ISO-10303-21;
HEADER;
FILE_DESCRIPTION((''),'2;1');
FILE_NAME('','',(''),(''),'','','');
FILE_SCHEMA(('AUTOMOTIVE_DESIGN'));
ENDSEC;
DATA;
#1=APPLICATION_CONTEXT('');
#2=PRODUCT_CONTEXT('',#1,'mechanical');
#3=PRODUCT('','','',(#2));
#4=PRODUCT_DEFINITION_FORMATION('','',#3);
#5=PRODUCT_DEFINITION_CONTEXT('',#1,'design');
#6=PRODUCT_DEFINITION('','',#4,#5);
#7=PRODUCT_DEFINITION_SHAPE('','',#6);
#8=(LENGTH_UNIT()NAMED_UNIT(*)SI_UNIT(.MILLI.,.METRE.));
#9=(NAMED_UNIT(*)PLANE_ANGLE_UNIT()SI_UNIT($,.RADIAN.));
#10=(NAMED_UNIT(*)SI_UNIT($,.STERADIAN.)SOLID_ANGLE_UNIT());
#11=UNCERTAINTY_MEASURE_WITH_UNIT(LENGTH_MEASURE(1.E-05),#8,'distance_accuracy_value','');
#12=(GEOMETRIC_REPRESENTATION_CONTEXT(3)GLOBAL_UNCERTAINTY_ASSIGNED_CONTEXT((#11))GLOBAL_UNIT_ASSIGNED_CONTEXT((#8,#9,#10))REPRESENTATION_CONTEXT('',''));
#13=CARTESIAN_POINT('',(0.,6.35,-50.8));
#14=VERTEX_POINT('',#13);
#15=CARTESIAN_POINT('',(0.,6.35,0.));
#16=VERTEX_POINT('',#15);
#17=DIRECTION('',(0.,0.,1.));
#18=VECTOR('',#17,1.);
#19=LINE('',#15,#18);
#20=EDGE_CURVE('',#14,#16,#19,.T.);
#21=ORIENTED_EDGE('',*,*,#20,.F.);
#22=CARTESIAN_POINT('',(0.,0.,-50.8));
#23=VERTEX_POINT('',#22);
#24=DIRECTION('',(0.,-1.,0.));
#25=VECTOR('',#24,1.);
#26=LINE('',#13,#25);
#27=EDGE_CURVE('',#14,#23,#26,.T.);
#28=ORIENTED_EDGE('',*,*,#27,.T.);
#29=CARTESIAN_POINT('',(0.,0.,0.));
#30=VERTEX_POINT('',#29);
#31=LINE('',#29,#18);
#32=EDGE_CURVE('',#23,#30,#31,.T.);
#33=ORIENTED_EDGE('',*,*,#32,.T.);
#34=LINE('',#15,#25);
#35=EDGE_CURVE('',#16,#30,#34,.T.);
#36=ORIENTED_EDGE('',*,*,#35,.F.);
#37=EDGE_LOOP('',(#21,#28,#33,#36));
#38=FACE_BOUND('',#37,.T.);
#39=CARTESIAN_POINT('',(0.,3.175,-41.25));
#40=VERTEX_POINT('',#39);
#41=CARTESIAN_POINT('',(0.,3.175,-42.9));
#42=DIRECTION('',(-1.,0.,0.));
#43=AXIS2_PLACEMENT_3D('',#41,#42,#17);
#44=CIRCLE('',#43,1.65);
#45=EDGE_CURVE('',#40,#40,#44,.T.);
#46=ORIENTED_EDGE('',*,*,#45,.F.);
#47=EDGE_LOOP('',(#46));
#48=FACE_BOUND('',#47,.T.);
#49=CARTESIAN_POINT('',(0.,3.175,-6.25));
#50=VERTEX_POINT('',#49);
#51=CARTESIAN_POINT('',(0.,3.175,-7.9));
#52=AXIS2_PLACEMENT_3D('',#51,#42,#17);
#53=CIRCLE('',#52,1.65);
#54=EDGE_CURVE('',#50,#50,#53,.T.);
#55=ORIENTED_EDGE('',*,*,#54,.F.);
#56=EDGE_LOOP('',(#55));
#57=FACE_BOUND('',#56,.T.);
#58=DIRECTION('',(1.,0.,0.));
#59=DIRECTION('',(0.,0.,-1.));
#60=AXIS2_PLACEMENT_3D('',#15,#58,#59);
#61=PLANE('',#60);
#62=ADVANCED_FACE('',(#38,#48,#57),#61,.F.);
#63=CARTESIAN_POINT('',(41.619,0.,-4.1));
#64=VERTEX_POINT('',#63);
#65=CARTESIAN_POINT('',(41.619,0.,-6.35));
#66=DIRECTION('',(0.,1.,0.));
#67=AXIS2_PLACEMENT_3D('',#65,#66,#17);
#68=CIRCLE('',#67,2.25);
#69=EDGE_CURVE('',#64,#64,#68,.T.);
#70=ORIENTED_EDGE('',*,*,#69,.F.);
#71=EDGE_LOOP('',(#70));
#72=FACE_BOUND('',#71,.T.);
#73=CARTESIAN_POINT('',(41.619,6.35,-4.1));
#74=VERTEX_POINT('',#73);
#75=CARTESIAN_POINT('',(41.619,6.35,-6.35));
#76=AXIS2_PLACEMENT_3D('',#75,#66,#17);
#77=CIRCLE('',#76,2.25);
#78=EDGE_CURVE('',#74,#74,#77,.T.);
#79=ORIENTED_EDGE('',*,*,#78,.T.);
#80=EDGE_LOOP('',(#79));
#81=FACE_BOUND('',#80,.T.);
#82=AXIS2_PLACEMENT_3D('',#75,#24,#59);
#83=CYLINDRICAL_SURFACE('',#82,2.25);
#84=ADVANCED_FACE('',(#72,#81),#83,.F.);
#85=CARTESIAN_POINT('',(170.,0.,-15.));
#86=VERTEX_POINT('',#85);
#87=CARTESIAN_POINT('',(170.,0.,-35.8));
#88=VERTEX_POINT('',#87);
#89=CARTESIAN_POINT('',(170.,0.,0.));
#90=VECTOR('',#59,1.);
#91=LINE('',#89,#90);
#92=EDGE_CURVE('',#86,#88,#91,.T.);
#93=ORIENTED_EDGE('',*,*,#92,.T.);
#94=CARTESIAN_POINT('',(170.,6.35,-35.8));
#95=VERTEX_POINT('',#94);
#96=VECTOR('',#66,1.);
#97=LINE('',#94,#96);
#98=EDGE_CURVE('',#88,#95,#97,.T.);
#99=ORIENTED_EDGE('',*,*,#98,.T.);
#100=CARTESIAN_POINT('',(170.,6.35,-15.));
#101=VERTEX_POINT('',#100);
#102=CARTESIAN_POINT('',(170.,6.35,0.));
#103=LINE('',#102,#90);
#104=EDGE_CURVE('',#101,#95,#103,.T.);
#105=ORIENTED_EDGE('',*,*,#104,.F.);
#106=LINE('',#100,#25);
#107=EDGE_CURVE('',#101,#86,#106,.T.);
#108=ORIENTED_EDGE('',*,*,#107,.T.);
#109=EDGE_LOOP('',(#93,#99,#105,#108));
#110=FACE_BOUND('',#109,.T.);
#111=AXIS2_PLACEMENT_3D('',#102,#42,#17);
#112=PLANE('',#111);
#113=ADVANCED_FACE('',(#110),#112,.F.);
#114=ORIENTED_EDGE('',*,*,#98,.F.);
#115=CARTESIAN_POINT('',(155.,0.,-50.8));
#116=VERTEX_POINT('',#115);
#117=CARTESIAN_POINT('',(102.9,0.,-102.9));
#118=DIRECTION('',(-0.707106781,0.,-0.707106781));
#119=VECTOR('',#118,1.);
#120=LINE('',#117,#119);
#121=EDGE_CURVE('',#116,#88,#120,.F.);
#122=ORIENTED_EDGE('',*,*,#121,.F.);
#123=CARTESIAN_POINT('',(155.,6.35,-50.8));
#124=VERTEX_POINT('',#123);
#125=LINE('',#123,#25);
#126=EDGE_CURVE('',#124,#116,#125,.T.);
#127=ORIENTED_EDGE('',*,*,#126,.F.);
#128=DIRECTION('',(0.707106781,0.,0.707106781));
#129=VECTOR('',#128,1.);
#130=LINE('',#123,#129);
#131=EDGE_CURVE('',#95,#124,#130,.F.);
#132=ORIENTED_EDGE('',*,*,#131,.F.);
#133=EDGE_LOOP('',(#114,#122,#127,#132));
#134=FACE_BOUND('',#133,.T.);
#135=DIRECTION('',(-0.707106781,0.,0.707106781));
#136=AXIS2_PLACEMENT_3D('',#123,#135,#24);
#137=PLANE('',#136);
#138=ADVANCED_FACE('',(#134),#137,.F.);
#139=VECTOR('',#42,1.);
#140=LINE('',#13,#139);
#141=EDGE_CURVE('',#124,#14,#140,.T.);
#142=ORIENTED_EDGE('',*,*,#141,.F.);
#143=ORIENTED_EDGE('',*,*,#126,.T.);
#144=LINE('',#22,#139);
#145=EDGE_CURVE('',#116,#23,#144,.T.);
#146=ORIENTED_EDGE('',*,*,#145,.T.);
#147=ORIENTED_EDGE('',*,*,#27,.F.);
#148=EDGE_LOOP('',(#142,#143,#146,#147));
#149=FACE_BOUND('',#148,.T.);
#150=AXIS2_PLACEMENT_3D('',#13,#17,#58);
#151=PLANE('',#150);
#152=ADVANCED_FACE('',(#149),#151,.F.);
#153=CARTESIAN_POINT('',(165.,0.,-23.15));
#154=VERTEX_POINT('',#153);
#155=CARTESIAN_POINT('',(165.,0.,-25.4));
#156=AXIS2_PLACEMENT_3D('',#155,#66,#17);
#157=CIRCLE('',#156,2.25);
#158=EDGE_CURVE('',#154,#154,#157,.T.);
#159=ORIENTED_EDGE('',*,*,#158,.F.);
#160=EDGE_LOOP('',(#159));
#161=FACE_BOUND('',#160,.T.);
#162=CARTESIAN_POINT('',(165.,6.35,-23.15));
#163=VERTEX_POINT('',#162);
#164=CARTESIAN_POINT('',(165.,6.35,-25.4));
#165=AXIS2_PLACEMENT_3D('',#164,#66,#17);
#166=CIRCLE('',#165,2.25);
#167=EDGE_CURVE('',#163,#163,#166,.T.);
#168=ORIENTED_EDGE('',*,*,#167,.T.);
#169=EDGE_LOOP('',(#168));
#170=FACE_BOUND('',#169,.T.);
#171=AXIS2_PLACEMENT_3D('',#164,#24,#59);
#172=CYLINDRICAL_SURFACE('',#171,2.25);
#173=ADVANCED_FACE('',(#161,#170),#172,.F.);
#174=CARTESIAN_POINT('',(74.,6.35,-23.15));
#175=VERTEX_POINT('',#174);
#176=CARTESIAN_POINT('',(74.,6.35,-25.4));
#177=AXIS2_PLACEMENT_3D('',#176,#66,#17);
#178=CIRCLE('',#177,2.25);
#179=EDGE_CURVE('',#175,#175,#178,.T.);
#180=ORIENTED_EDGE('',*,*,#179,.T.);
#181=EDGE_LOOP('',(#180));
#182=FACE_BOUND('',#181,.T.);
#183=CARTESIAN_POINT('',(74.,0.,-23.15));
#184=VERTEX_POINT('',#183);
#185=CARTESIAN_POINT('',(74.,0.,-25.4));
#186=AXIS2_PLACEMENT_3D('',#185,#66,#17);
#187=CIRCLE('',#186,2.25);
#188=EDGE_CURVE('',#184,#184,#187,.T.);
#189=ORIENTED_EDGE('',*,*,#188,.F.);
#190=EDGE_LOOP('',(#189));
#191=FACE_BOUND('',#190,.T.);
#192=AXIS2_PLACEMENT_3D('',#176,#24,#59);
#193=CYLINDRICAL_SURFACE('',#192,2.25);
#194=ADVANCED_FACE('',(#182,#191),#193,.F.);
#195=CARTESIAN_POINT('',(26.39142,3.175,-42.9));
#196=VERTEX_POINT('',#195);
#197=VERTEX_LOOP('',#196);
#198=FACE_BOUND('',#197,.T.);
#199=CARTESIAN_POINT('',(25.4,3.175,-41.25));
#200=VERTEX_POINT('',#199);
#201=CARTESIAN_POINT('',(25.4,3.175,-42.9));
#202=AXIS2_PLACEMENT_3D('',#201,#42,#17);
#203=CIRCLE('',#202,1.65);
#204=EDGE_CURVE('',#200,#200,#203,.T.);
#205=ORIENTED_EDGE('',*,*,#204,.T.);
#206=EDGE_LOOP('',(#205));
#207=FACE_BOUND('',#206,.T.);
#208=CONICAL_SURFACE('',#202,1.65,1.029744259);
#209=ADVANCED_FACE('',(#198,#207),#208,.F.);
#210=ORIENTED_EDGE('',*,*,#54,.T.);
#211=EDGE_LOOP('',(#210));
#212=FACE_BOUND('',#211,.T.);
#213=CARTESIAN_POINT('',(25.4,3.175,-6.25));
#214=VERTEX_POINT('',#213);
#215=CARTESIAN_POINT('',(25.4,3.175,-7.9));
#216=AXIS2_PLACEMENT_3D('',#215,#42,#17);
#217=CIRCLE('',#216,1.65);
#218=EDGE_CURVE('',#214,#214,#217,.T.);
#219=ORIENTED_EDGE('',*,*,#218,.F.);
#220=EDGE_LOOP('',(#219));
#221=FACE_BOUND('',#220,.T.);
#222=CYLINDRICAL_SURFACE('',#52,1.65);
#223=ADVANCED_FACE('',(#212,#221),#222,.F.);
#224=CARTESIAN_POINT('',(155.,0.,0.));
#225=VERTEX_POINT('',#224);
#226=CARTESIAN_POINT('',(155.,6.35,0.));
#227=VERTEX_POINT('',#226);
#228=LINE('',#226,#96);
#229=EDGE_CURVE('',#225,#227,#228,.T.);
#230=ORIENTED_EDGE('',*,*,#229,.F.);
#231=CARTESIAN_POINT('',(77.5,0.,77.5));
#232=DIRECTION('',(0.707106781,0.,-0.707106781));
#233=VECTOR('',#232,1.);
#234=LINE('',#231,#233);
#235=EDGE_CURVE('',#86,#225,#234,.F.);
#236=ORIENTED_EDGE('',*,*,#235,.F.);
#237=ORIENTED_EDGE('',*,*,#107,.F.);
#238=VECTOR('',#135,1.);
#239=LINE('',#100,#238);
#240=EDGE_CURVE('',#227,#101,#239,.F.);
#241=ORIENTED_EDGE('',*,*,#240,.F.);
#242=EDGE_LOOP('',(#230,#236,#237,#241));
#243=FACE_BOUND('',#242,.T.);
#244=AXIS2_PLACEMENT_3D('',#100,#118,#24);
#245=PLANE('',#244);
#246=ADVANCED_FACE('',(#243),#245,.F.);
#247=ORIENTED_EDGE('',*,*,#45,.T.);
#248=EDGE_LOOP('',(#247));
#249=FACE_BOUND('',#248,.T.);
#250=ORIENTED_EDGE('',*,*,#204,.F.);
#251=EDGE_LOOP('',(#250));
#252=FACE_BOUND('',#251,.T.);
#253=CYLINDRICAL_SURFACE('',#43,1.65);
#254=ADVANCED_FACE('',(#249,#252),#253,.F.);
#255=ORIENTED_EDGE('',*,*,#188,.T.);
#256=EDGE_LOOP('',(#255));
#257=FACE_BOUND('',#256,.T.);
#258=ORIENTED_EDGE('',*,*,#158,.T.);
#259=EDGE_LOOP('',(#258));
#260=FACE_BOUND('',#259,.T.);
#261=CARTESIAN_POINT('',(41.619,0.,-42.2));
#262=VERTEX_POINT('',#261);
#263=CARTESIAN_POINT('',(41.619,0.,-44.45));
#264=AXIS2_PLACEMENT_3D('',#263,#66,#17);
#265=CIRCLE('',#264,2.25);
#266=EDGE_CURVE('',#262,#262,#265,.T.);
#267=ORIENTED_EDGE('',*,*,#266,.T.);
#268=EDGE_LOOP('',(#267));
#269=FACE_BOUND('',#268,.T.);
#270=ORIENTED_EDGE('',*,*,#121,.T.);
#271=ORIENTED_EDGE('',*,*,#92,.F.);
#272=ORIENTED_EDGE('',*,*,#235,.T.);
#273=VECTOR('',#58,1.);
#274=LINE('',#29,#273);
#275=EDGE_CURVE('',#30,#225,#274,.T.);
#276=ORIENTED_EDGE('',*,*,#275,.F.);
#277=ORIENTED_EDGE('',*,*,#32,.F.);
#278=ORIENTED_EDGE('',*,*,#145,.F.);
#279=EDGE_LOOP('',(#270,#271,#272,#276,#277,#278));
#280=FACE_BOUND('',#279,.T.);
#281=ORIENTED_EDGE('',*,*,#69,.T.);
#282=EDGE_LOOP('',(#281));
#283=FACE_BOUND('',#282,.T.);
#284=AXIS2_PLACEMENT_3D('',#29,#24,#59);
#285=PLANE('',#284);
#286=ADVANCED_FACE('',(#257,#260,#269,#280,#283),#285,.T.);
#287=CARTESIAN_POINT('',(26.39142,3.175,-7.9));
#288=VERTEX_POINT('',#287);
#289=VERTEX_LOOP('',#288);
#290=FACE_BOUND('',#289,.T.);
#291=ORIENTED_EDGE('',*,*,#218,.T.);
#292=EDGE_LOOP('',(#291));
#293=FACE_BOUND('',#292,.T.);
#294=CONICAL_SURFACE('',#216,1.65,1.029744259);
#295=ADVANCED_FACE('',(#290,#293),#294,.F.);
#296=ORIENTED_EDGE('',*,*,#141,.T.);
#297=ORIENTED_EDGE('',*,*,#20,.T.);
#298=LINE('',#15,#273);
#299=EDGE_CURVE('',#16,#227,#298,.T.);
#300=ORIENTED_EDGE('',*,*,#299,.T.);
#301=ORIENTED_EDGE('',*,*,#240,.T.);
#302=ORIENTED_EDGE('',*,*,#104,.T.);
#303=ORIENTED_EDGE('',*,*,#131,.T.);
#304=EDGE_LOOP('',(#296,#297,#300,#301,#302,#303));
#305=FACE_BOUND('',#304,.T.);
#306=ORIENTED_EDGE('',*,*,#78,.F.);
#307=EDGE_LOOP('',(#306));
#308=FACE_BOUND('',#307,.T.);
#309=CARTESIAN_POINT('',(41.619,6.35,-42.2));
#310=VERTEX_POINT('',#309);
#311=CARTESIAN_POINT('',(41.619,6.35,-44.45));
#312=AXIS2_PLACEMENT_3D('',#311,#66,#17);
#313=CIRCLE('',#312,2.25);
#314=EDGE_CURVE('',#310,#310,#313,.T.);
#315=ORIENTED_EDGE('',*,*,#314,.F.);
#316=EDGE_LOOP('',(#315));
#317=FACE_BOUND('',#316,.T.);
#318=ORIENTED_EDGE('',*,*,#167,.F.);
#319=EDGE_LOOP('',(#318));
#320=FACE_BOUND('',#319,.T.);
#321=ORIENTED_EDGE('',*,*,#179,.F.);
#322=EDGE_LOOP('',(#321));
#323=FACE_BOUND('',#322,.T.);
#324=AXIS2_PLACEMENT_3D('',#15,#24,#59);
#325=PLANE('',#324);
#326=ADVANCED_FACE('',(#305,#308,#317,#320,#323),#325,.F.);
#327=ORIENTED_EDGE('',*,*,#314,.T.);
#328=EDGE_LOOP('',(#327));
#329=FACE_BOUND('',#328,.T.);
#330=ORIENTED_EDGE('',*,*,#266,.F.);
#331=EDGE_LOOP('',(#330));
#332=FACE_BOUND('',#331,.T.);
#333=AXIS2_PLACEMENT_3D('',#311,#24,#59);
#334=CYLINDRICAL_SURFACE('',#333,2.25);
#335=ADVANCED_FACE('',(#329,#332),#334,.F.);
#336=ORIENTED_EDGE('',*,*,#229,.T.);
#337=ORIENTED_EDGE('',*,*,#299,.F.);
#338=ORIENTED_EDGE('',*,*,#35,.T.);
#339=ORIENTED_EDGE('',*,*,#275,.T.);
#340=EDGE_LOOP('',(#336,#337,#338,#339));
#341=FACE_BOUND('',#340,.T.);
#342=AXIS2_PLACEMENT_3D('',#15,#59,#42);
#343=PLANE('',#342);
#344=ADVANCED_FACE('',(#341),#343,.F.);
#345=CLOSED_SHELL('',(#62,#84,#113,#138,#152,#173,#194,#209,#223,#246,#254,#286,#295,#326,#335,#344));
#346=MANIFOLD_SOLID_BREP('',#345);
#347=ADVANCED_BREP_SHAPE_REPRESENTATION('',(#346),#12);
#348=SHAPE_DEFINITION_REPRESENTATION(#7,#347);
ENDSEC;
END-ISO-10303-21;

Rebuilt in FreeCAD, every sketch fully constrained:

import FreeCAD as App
import Part
import Sketcher
from FreeCAD import Vector
Q = App.Units.Quantity


def edges_at(feature, points):
    """Names of the edges that pass closest to the given points."""
    edges = feature.Shape.Edges
    near = lambda p: min(range(len(edges)), key=lambda i: edges[i].distToShape(Part.Vertex(*p))[0])
    return sorted({f"Edge{near(p) + 1}" for p in points})


def add_polygon(sketch, points):
    """Adds a closed chain of lines whose ends are joined by coincident constraints."""
    first, n = sketch.GeometryCount, len(points)
    for a, b in zip(points, points[1:] + points[:1]):
        sketch.addGeometry(Part.LineSegment(App.Vector(*a, 0), App.Vector(*b, 0)), False)
    for i in range(n):
        sketch.addConstraint(Sketcher.Constraint("Coincident", first + i, 2, first + (i + 1) % n, 1))

doc = App.newDocument("Part")
body = doc.addObject("PartDesign::Body", "Body")

# Sketch on XZ plane
sketch1 = doc.addObject("Sketcher::SketchObject", "Sketch")
body.addObject(sketch1)
sketch1.AttachmentSupport = (doc.XZ_Plane, [""])
sketch1.MapMode = "FlatFace"
add_polygon(sketch1, [(0, -50.8), (0, 0), (170, 0), (170, -50.8)])  # lines 0-3
sketch1.addGeometry(Part.Circle(Vector(41.6, -6.3, 0), Vector(0, 0, 1), 2.2), False)  # 4
sketch1.addGeometry(Part.Circle(Vector(74, -25.4, 0), Vector(0, 0, 1), 2.2), False)  # 5
sketch1.addGeometry(Part.Circle(Vector(165, -25.4, 0), Vector(0, 0, 1), 2.2), False)  # 6
sketch1.addGeometry(Part.Circle(Vector(41.6, -44.5, 0), Vector(0, 0, 1), 2.2), False)  # 7
sketch1.addConstraint([
    Sketcher.Constraint("Vertical", 0),
    Sketcher.Constraint("Horizontal", 1),
    Sketcher.Constraint("Vertical", 2),
    Sketcher.Constraint("Horizontal", 3),
    Sketcher.Constraint("Coincident", 0, 2, -1, 1),
    Sketcher.Constraint("Equal", 4, 5),
    Sketcher.Constraint("Equal", 5, 6),
    Sketcher.Constraint("Equal", 6, 7),
    Sketcher.Constraint("Horizontal", 5, 3, 6, 3),
    Sketcher.Constraint("Vertical", 4, 3, 7, 3),
    Sketcher.Constraint("Diameter", 4, Q("4.5 mm")),
    Sketcher.Constraint("DistanceX", 1, 1, 1, 2, Q("170 mm")),
    Sketcher.Constraint("DistanceY", 0, 1, 0, 2, Q("50.8 mm")),
    Sketcher.Constraint("DistanceX", -1, 1, 5, 3, Q("74 mm")),
    Sketcher.Constraint("DistanceX", -1, 1, 6, 3, Q("165 mm")),
    Sketcher.Constraint("DistanceY", 5, 3, -1, 1, Q("25.4 mm")),
    Sketcher.Constraint("DistanceY", 7, 3, 4, 3, Q("38.1 mm")),
    Sketcher.Constraint("DistanceY", 4, 3, -1, 1, Q("6.35 mm")),
    Sketcher.Constraint("DistanceX", -1, 1, 4, 3, Q("41.619 mm")),
])
pad1 = doc.addObject("PartDesign::Pad", "Pad")
body.addObject(pad1)
pad1.Profile = sketch1
pad1.Length = 6.35
pad1.Reversed = True
doc.recompute()

chamfer = doc.addObject("PartDesign::Chamfer", "Chamfer")
body.addObject(chamfer)
chamfer.Base = (pad1, edges_at(pad1, [(170, 3.175, -50.8), (170, 3.175, 0)]))
chamfer.Size = 15

# Sketch on YZ plane
sketch2 = doc.addObject("Sketcher::SketchObject", "Sketch001")
body.addObject(sketch2)
sketch2.AttachmentSupport = (doc.YZ_Plane, [""])
sketch2.MapMode = "FlatFace"
sketch2.addGeometry([
    Part.Circle(Vector(3.2, -42.9, 0), Vector(0, 0, 1), 1.6),
    Part.Circle(Vector(3.2, -7.9, 0), Vector(0, 0, 1), 1.6),
], False)
sketch2.addConstraint([
    Sketcher.Constraint("Equal", 0, 1),
    Sketcher.Constraint("Vertical", 0, 3, 1, 3),
    Sketcher.Constraint("Diameter", 0, Q("3.3 mm")),
    Sketcher.Constraint("DistanceY", 0, 3, 1, 3, Q("35 mm")),
    Sketcher.Constraint("DistanceY", 0, 3, -1, 1, Q("42.9 mm")),
    Sketcher.Constraint("DistanceX", -1, 1, 0, 3, Q("3.175 mm")),
])
doc.recompute()
hole = doc.addObject("PartDesign::Hole", "Hole")
body.addObject(hole)
hole.Profile = sketch2
hole.ThreadType = "None"
hole.Diameter = 3.3
hole.DepthType = "Dimension"
hole.Depth = 25.4
hole.DrillPoint = "Angled"
hole.DrillPointAngle = 118
hole.Reversed = True

doc.recompute()
